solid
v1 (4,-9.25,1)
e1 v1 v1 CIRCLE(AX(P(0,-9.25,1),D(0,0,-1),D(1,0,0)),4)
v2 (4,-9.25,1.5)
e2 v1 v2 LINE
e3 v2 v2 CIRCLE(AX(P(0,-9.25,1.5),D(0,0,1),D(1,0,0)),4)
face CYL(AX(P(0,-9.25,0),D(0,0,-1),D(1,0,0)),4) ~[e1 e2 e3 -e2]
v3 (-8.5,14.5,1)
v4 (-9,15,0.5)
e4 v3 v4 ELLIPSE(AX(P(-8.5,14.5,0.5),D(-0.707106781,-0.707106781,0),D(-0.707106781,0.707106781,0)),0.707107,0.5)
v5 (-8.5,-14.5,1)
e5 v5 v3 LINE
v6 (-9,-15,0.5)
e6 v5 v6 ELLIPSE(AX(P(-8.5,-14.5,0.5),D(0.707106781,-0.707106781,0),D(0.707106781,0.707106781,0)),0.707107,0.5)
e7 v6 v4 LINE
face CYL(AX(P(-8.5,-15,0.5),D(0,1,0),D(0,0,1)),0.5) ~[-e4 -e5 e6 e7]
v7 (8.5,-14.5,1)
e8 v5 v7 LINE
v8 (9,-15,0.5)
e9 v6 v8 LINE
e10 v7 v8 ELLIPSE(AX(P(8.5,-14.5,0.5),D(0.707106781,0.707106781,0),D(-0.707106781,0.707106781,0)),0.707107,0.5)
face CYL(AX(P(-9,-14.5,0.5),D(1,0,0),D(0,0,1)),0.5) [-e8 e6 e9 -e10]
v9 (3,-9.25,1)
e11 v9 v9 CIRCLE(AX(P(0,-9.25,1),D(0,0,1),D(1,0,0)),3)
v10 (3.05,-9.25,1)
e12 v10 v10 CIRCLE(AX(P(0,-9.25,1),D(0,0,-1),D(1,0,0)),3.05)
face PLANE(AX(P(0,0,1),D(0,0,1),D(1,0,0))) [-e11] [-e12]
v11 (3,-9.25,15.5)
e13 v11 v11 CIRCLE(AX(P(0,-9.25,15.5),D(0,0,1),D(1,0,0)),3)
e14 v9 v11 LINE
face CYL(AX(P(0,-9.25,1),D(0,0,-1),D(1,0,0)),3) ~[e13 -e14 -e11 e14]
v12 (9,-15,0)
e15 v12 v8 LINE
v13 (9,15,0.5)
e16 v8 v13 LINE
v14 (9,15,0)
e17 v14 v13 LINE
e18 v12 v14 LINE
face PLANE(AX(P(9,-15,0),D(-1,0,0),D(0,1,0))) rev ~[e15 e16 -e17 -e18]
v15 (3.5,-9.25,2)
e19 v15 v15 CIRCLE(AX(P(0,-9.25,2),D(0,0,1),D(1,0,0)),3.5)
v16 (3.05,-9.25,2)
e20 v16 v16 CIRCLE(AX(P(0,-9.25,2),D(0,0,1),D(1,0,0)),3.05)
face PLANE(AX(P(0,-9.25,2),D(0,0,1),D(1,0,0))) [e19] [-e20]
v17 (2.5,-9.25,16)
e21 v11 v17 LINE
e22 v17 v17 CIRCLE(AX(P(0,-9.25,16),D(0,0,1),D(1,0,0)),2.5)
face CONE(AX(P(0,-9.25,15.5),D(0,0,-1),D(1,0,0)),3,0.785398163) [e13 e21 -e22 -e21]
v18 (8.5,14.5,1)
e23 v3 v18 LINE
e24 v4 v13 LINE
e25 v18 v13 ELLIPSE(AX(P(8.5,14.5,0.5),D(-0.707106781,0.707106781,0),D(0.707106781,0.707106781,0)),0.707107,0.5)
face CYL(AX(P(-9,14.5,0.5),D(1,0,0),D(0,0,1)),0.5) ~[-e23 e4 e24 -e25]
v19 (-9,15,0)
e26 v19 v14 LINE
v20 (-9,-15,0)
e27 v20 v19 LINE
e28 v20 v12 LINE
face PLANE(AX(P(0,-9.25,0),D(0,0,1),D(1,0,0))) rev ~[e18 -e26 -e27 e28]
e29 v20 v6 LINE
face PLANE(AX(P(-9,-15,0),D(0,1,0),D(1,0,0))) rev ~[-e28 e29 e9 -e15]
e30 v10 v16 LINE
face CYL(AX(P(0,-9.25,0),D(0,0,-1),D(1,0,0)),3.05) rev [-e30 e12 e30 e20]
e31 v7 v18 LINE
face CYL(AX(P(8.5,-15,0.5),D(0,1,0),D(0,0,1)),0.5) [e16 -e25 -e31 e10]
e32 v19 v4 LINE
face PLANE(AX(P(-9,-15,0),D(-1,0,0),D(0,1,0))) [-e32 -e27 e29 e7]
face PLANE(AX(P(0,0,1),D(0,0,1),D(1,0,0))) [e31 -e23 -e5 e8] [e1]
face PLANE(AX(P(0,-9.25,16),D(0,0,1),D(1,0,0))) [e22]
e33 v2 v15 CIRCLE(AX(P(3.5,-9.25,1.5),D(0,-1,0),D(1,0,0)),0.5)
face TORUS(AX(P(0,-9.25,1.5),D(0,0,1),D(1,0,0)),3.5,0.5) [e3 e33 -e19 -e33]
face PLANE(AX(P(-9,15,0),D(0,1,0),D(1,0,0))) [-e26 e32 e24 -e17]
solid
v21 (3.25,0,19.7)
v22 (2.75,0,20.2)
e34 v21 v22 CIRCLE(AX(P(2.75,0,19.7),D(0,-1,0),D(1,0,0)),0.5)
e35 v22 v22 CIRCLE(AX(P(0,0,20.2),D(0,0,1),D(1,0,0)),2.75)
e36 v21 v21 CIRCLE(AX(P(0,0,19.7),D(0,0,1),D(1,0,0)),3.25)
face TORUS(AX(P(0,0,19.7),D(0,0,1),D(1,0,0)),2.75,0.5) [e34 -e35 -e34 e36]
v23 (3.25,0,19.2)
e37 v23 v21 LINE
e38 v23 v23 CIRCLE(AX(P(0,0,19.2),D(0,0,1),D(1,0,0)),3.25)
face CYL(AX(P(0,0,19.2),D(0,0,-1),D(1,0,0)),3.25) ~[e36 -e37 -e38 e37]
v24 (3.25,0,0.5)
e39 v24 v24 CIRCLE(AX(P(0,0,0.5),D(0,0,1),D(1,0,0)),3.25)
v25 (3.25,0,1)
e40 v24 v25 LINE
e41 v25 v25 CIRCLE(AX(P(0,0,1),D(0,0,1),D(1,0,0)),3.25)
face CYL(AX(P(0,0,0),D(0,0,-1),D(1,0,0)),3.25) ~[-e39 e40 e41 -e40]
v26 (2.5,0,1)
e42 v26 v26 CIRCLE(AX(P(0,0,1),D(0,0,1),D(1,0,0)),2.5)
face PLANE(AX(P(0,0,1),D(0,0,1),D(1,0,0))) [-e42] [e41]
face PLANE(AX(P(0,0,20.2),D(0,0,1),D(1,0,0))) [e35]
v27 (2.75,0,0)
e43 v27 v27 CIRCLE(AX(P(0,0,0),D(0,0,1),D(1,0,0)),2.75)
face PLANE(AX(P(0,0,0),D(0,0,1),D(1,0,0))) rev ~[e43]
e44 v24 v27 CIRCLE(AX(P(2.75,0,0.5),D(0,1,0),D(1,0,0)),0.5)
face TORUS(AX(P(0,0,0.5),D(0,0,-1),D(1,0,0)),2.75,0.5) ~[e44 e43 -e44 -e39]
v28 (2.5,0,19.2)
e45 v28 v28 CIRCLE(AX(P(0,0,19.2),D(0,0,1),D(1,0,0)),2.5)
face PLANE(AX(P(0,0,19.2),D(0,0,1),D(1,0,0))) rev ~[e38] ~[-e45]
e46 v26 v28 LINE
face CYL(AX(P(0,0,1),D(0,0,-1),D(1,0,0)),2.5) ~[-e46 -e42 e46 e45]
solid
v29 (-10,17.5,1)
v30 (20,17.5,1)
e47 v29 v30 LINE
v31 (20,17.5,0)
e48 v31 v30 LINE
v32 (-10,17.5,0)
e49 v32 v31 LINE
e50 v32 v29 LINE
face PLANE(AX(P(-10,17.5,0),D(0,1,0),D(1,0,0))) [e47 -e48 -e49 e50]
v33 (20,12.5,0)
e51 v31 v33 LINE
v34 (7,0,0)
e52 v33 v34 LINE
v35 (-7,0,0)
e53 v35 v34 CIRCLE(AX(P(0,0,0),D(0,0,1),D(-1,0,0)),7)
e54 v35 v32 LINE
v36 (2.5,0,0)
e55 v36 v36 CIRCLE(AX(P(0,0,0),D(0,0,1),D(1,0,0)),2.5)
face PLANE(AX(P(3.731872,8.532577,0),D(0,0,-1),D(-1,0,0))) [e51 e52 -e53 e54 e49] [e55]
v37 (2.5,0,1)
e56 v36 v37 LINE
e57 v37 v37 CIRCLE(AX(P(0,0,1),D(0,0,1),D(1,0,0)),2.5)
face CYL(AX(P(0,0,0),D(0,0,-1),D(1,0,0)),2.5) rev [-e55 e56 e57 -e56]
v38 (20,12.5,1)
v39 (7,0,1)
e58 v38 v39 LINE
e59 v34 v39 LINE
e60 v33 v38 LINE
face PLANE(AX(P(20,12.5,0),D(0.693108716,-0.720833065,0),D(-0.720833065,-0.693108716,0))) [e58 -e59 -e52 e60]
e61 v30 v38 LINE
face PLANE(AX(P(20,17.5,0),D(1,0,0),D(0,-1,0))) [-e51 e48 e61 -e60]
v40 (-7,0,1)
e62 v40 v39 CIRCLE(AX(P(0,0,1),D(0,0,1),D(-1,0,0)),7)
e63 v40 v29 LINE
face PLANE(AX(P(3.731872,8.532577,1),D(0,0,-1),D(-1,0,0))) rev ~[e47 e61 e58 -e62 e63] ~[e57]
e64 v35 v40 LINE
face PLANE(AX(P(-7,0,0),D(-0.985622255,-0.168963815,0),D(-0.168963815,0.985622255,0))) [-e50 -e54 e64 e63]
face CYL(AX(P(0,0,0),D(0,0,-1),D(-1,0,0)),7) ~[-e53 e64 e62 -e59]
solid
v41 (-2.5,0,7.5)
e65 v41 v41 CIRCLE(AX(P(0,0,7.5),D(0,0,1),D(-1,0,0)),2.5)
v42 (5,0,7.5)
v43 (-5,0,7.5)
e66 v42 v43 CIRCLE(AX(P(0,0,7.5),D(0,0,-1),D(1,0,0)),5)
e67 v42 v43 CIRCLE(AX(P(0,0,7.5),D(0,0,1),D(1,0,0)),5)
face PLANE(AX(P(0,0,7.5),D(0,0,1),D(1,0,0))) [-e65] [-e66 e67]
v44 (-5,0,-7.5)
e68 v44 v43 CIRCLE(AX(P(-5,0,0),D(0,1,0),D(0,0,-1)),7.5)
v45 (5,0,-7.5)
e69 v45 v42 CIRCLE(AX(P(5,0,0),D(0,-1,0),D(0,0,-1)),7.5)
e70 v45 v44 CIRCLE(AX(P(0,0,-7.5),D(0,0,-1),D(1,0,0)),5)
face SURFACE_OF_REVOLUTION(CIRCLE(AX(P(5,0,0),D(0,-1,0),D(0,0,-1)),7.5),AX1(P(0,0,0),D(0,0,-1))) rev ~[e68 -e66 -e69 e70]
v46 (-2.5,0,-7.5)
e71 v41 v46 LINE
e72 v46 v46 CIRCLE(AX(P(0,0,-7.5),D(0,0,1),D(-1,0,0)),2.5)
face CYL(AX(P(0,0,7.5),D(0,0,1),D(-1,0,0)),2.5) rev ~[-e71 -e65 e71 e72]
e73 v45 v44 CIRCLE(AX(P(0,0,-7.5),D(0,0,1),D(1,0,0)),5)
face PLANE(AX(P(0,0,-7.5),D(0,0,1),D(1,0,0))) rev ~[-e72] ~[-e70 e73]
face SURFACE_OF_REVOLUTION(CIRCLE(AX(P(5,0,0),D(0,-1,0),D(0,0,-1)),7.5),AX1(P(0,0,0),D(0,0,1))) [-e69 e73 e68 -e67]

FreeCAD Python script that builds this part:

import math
import FreeCAD as App
import Part
import Sketcher
from FreeCAD import Vector
Q = App.Units.Quantity


def edges_at(feature, points):
    """Names of the edges that pass closest to the given points."""
    edges = feature.Shape.Edges
    near = lambda p: min(range(len(edges)), key=lambda i: edges[i].distToShape(Part.Vertex(*p))[0])
    return sorted({f"Edge{near(p) + 1}" for p in points})


def add_polygon(sketch, points):
    """Adds a closed chain of lines whose ends are joined by coincident constraints."""
    first, n = sketch.GeometryCount, len(points)
    for a, b in zip(points, points[1:] + points[:1]):
        sketch.addGeometry(Part.LineSegment(App.Vector(*a, 0), App.Vector(*b, 0)), False)
    for i in range(n):
        sketch.addConstraint(Sketcher.Constraint("Coincident", first + i, 2, first + (i + 1) % n, 1))

doc = App.newDocument("Part")
body = doc.addObject("PartDesign::Body", "Body")

# Sketch on XZ plane
sketch1 = body.newObject("Sketcher::SketchObject", "Sketch")
sketch1.AttachmentSupport = (doc.getObject("XZ_Plane"), [""])
sketch1.MapMode = "FlatFace"
sketch1.addGeometry([
    Part.LineSegment(Vector(5, 8, 0), Vector(0, 8, 0)),
    Part.LineSegment(Vector(0, 8, 0), Vector(0, -8, 0)),
    Part.LineSegment(Vector(0, -8, 0), Vector(5, -8, 0)),
    Part.ArcOfCircle(Part.Circle(Vector(5, 0, 0), Vector(0, 0, 1), 8), math.radians(-90), math.radians(90)),
], False)
sketch1.addConstraint([
    Sketcher.Constraint("Coincident", 0, 2, 1, 1),
    Sketcher.Constraint("Coincident", 1, 2, 2, 1),
    Sketcher.Constraint("Tangent", 2, 2, 3, 1),
    Sketcher.Constraint("Tangent", 3, 2, 0, 1),
    Sketcher.Constraint("Horizontal", 0),
    Sketcher.Constraint("Vertical", 1),
    Sketcher.Constraint("Horizontal", 2),
    Sketcher.Constraint("Symmetric", 0, 2, 1, 2, -1, 1),
    Sketcher.Constraint("Radius", 3, Q("7.5 mm")),
    Sketcher.Constraint("DistanceX", 0, 2, 0, 1, Q("5 mm")),
])
revolution = body.newObject("PartDesign::Revolution", "Revolution")
revolution.Profile = sketch1
revolution.ReferenceAxis = (sketch1, ["V_Axis"])
revolution.Angle = 180
revolution.Reversed = True

# Sketch on XZ plane
sketch2 = body.newObject("Sketcher::SketchObject", "Sketch001")
sketch2.AttachmentSupport = (doc.getObject("XZ_Plane"), [""])
sketch2.MapMode = "FlatFace"
sketch2.addGeometry([
    Part.LineSegment(Vector(5, 8, 0), Vector(0, 8, 0)),
    Part.LineSegment(Vector(0, 8, 0), Vector(0, -8, 0)),
    Part.LineSegment(Vector(0, -8, 0), Vector(5, -8, 0)),
    Part.ArcOfCircle(Part.Circle(Vector(5, 0, 0), Vector(0, 0, 1), 8), math.radians(-90), math.radians(90)),
], False)
sketch2.addConstraint([
    Sketcher.Constraint("Coincident", 0, 2, 1, 1),
    Sketcher.Constraint("Coincident", 1, 2, 2, 1),
    Sketcher.Constraint("Tangent", 2, 2, 3, 1),
    Sketcher.Constraint("Tangent", 3, 2, 0, 1),
    Sketcher.Constraint("Horizontal", 0),
    Sketcher.Constraint("Vertical", 1),
    Sketcher.Constraint("Horizontal", 2),
    Sketcher.Constraint("Symmetric", 0, 2, 1, 2, -1, 1),
    Sketcher.Constraint("Radius", 3, Q("7.5 mm")),
    Sketcher.Constraint("DistanceX", 0, 2, 0, 1, Q("5 mm")),
])
revolution2 = body.newObject("PartDesign::Revolution", "Revolution001")
revolution2.Profile = sketch2
revolution2.ReferenceAxis = (sketch2, ["V_Axis"])
revolution2.Angle = 180

# Sketch on XY plane
sketch3 = body.newObject("Sketcher::SketchObject", "Sketch002")
sketch3.AttachmentSupport = (doc.getObject("XY_Plane"), [""])
sketch3.MapMode = "FlatFace"
sketch3.AttachmentOffset = App.Placement(Vector(0, 0, 7.5), App.Rotation())
sketch3.addGeometry(Part.Circle(Vector(0, 0, 0), Vector(0, 0, 1), 2.5), False)
sketch3.addConstraint([
    Sketcher.Constraint("Coincident", 0, 3, -1, 1),
    Sketcher.Constraint("Diameter", 0, Q("5 mm")),
])
pocket1 = body.newObject("PartDesign::Pocket", "Pocket")
pocket1.Profile = sketch3
pocket1.Type = "ThroughAll"
body2 = doc.addObject("PartDesign::Body", "Body001")

# Sketch on XY plane
sketch4 = body2.newObject("Sketcher::SketchObject", "Sketch003")
sketch4.AttachmentSupport = (doc.getObject("XY_Plane001"), [""])
sketch4.MapMode = "FlatFace"
sketch4.addGeometry([
    Part.LineSegment(Vector(-10, 17.5, 0), Vector(-7, 0, 0)),  # 0
    Part.ArcOfCircle(Part.Circle(Vector(0, 0, 0), Vector(0, 0, 1), 7), math.radians(180), math.radians(360)),  # 1
    Part.LineSegment(Vector(7, 0, 0), Vector(20, 12.5, 0)),  # 2
    Part.LineSegment(Vector(20, 12.5, 0), Vector(20, 17.5, 0)),  # 3
    Part.LineSegment(Vector(20, 17.5, 0), Vector(-10, 17.5, 0)),  # 4
    Part.Circle(Vector(0, 0, 0), Vector(0, 0, 1), 2.5),  # 5
], False)
sketch4.addConstraint([
    Sketcher.Constraint("Coincident", 0, 2, 1, 1),
    Sketcher.Constraint("Coincident", 1, 2, 2, 1),
    Sketcher.Constraint("Coincident", 2, 2, 3, 1),
    Sketcher.Constraint("Coincident", 3, 2, 4, 1),
    Sketcher.Constraint("Coincident", 4, 2, 0, 1),
    Sketcher.Constraint("Vertical", 3),
    Sketcher.Constraint("Horizontal", 4),
    Sketcher.Constraint("Coincident", 1, 3, -1, 1),
    Sketcher.Constraint("Coincident", 5, 3, -1, 1),
    Sketcher.Constraint("PointOnObject", 0, 2, -1),
    Sketcher.Constraint("PointOnObject", 1, 2, -1),
    Sketcher.Constraint("Diameter", 5, Q("5 mm")),
    Sketcher.Constraint("Radius", 1, Q("7 mm")),
    Sketcher.Constraint("DistanceX", 4, 2, 4, 1, Q("30 mm")),
    Sketcher.Constraint("DistanceY", 3, 1, 3, 2, Q("5 mm")),
    Sketcher.Constraint("DistanceX", -1, 1, 2, 2, Q("20 mm")),
    Sketcher.Constraint("DistanceY", -1, 1, 2, 2, Q("12.5 mm")),
])
pad1 = body2.newObject("PartDesign::Pad", "Pad")
pad1.Profile = sketch4
pad1.Length = 1
body3 = doc.addObject("PartDesign::Body", "Body002")

# Sketch on XY plane
sketch5 = body3.newObject("Sketcher::SketchObject", "Sketch004")
sketch5.AttachmentSupport = (doc.getObject("XY_Plane002"), [""])
sketch5.MapMode = "FlatFace"
add_polygon(sketch5, [(-9, 15), (-9, -15), (9, -15), (9, 15)])  # lines 0-3
sketch5.addConstraint([
    Sketcher.Constraint("Vertical", 0),
    Sketcher.Constraint("Horizontal", 1),
    Sketcher.Constraint("Vertical", 2),
    Sketcher.Constraint("Horizontal", 3),
    Sketcher.Constraint("Symmetric", 0, 2, 2, 2, -1, 1),
    Sketcher.Constraint("DistanceX", 1, 1, 1, 2, Q("18 mm")),
    Sketcher.Constraint("DistanceY", 0, 2, 0, 1, Q("30 mm")),
])
pad2 = body3.newObject("PartDesign::Pad", "Pad001")
pad2.Profile = sketch5
pad2.Length = 1

# Sketch on XY plane
sketch6 = body3.newObject("Sketcher::SketchObject", "Sketch005")
sketch6.AttachmentSupport = (doc.getObject("XY_Plane002"), [""])
sketch6.MapMode = "FlatFace"
sketch6.AttachmentOffset = App.Placement(Vector(0, 0, 1), App.Rotation())
sketch6.addGeometry(Part.Circle(Vector(0, -9.2, 0), Vector(0, 0, 1), 3), False)
sketch6.addConstraint([
    Sketcher.Constraint("PointOnObject", 0, 3, -2),
    Sketcher.Constraint("Diameter", 0, Q("6 mm")),
    Sketcher.Constraint("DistanceY", 0, 3, -1, 1, Q("9.25 mm")),
])
pad3 = body3.newObject("PartDesign::Pad", "Pad002")
pad3.Profile = sketch6
pad3.Length = 15

# Sketch on XY plane
sketch7 = body3.newObject("Sketcher::SketchObject", "Sketch006")
sketch7.AttachmentSupport = (doc.getObject("XY_Plane002"), [""])
sketch7.MapMode = "FlatFace"
sketch7.addGeometry([
    Part.Circle(Vector(0, -9.2, 0), Vector(0, 0, 1), 4),
    Part.Circle(Vector(0, -9.2, 0), Vector(0, 0, 1), 3),
], False)
sketch7.addConstraint([
    Sketcher.Constraint("Coincident", 1, 3, 0, 3),
    Sketcher.Constraint("PointOnObject", 0, 3, -2),
    Sketcher.Constraint("Diameter", 0, Q("8 mm")),
    Sketcher.Constraint("Diameter", 1, Q("6.1 mm")),
    Sketcher.Constraint("DistanceY", 0, 3, -1, 1, Q("9.25 mm")),
])
pad4 = body3.newObject("PartDesign::Pad", "Pad003")
pad4.Profile = sketch7
pad4.Length = 2
doc.recompute()

fillet = body3.newObject("PartDesign::Fillet", "Fillet")
fillet.Base = (pad4, edges_at(pad4, [(-4, -9.25, 2)]))
fillet.Radius = 0.5
doc.recompute()

chamfer = body3.newObject("PartDesign::Chamfer", "Chamfer")
chamfer.Base = (fillet, edges_at(fillet, [(-3, -9.25, 16)]))
chamfer.Size = 0.5
doc.recompute()

fillet2 = body3.newObject("PartDesign::Fillet", "Fillet001")
fillet2.Base = (chamfer, edges_at(chamfer, [
    (-9, 0, 1),
    (0, 15, 1),
    (9, 0, 1),
    (0, -15, 1),
]))
fillet2.Radius = 0.5
body4 = doc.addObject("PartDesign::Body", "Body003")

# Sketch on XY plane
sketch8 = body4.newObject("Sketcher::SketchObject", "Sketch007")
sketch8.AttachmentSupport = (doc.getObject("XY_Plane003"), [""])
sketch8.MapMode = "FlatFace"
sketch8.addGeometry(Part.Circle(Vector(0, 0, 0), Vector(0, 0, 1), 3.2), False)
sketch8.addConstraint([
    Sketcher.Constraint("Coincident", 0, 3, -1, 1),
    Sketcher.Constraint("Diameter", 0, Q("6.5 mm")),
])
pad5 = body4.newObject("PartDesign::Pad", "Pad004")
pad5.Profile = sketch8
pad5.Length = 1

# Sketch on XY plane
sketch9 = body4.newObject("Sketcher::SketchObject", "Sketch008")
sketch9.AttachmentSupport = (doc.getObject("XY_Plane003"), [""])
sketch9.MapMode = "FlatFace"
sketch9.AttachmentOffset = App.Placement(Vector(0, 0, 1), App.Rotation())
sketch9.addGeometry(Part.Circle(Vector(0, 0, 0), Vector(0, 0, 1), 2.5), False)
sketch9.addConstraint([
    Sketcher.Constraint("Coincident", 0, 3, -1, 1),
    Sketcher.Constraint("Diameter", 0, Q("5 mm")),
])
pad6 = body4.newObject("PartDesign::Pad", "Pad005")
pad6.Profile = sketch9
pad6.Length = 18.2

# Sketch on XY plane
sketch10 = body4.newObject("Sketcher::SketchObject", "Sketch009")
sketch10.AttachmentSupport = (doc.getObject("XY_Plane003"), [""])
sketch10.MapMode = "FlatFace"
sketch10.AttachmentOffset = App.Placement(Vector(0, 0, 19.2), App.Rotation())
sketch10.addGeometry(Part.Circle(Vector(0, 0, 0), Vector(0, 0, 1), 3.2), False)
sketch10.addConstraint([
    Sketcher.Constraint("Coincident", 0, 3, -1, 1),
    Sketcher.Constraint("Diameter", 0, Q("6.5 mm")),
])
pad7 = body4.newObject("PartDesign::Pad", "Pad006")
pad7.Profile = sketch10
pad7.Length = 1
doc.recompute()

fillet3 = body4.newObject("PartDesign::Fillet", "Fillet002")
fillet3.Base = (pad7, edges_at(pad7, [(-3.25, 0, 20.2)]))
fillet3.Radius = 0.5
doc.recompute()

fillet4 = body4.newObject("PartDesign::Fillet", "Fillet003")
fillet4.Base = (fillet3, edges_at(fillet3, [(-3.25, 0, 0)]))
fillet4.Radius = 0.5

doc.recompute()
